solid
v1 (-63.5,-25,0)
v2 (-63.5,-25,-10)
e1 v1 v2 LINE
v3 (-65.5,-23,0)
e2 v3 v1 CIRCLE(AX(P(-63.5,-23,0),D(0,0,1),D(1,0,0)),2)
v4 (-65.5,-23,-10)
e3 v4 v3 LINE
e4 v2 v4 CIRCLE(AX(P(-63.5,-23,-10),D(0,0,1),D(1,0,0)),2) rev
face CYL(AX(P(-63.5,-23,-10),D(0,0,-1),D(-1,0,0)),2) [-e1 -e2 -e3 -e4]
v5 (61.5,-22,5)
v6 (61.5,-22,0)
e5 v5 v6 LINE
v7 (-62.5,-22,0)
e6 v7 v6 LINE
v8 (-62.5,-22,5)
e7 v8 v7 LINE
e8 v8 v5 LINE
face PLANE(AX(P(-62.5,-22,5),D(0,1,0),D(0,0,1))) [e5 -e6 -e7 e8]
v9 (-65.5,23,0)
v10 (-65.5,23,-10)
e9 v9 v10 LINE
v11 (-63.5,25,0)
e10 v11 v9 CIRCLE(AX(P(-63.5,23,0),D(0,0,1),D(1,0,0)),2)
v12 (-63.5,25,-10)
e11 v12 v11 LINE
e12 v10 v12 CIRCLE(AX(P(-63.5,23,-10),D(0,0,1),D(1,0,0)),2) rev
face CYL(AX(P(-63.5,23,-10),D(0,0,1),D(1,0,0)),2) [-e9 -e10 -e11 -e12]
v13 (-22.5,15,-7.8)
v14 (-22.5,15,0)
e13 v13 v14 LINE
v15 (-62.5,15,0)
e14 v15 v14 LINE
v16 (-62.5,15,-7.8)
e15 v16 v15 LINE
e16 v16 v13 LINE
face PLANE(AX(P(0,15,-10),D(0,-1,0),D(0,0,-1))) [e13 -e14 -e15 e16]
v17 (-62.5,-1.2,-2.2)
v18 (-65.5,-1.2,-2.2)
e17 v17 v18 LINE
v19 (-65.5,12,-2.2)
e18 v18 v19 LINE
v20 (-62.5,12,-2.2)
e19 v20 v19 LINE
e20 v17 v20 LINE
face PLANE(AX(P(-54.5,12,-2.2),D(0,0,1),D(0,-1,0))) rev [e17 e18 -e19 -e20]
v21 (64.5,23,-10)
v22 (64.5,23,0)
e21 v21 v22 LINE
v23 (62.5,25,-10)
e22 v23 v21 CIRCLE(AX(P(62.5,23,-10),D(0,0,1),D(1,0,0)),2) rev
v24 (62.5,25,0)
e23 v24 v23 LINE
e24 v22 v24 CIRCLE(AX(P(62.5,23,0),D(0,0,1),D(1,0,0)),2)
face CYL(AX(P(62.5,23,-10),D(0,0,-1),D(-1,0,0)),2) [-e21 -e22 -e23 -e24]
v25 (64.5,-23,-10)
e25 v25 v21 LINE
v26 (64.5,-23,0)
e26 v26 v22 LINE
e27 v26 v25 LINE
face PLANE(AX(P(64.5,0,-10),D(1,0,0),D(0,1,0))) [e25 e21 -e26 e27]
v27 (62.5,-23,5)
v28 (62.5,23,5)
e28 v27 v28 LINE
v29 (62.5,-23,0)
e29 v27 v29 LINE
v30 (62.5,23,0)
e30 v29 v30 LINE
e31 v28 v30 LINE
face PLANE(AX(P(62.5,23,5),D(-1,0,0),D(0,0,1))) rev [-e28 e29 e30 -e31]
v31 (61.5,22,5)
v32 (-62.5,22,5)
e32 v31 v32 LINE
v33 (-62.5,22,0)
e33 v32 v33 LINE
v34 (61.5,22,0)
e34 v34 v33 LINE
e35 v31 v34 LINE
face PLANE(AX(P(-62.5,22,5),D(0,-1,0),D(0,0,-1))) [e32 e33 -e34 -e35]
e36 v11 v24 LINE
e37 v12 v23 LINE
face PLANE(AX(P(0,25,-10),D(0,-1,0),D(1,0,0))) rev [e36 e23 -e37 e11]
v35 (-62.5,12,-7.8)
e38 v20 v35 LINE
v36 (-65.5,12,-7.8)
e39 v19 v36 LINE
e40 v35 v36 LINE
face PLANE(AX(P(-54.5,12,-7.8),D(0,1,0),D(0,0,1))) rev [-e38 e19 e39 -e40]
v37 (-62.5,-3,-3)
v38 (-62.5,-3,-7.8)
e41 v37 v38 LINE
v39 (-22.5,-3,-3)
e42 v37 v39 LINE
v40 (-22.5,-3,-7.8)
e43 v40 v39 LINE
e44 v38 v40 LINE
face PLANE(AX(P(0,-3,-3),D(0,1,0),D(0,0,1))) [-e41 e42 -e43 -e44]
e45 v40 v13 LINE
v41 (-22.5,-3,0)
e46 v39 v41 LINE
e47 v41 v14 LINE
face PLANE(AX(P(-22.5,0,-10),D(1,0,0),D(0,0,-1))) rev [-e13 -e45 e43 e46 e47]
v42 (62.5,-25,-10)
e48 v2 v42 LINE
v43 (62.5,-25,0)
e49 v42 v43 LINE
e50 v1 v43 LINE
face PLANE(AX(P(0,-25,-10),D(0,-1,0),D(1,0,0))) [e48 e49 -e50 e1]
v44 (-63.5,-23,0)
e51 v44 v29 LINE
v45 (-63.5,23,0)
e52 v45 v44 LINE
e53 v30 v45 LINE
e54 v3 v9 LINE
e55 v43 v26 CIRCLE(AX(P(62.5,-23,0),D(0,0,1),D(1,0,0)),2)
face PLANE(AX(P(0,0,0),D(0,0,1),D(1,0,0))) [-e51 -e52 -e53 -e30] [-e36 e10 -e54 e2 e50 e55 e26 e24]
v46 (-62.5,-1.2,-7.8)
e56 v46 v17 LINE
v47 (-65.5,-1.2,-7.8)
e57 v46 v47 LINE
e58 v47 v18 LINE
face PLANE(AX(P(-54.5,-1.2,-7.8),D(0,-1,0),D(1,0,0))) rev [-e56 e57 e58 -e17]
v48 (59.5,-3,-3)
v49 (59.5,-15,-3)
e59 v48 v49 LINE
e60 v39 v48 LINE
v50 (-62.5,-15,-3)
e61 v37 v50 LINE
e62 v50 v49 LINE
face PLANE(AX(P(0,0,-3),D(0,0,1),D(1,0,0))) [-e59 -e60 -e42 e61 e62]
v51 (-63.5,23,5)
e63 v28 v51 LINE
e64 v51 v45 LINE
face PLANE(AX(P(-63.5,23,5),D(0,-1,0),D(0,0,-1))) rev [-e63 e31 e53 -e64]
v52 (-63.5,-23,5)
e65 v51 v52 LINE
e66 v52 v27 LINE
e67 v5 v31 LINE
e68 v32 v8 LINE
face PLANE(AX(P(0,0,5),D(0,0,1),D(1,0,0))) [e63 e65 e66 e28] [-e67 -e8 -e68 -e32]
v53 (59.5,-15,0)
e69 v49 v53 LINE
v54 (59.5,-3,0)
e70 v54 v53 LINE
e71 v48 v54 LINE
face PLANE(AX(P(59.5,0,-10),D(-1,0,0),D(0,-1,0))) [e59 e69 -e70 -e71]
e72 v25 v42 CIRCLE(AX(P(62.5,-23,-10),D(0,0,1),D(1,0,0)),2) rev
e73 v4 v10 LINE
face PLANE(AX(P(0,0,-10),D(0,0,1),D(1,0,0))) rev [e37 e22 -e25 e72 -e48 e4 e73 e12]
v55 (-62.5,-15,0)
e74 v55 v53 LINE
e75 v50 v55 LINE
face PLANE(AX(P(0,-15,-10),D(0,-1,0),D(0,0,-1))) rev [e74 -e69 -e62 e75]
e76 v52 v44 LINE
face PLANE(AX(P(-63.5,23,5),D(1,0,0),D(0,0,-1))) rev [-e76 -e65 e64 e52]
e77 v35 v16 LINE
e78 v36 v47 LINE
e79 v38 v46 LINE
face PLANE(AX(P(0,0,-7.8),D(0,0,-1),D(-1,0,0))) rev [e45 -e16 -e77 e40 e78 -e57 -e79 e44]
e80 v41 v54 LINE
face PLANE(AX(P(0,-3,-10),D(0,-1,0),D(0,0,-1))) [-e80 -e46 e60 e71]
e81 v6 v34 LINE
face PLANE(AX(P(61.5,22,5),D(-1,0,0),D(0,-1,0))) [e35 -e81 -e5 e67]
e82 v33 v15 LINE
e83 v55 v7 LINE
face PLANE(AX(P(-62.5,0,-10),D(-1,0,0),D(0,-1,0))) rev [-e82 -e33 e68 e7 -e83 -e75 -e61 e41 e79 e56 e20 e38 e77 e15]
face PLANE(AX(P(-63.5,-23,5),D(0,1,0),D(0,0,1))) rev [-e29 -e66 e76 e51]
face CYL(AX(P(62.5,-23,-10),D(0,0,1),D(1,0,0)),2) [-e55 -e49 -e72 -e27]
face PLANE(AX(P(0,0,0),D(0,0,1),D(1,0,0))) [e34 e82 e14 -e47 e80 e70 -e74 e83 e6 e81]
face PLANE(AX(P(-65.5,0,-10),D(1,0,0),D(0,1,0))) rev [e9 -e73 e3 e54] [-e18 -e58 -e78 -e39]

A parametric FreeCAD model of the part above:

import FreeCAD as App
import Part
import Sketcher
Q = App.Units.Quantity


def edges_at(feature, points):
    """Names of the edges that pass closest to the given points."""
    edges = feature.Shape.Edges
    near = lambda p: min(range(len(edges)), key=lambda i: edges[i].distToShape(Part.Vertex(*p))[0])
    return sorted({f"Edge{near(p) + 1}" for p in points})

doc = App.newDocument("Part")
body = doc.addObject("PartDesign::Body", "Body")

sketch1 = doc.addObject("Sketcher::SketchObject", "Sketch")
body.addObject(sketch1)
sketch1.AttachmentSupport = (doc.XY_Plane, [""])
sketch1.MapMode = "FlatFace"
sketch1.addGeometry([
    Part.LineSegment(App.Vector(-65.5, 25, 0), App.Vector(-65.5, -25, 0)),
    Part.LineSegment(App.Vector(-65.5, -25, 0), App.Vector(64.5, -25, 0)),
    Part.LineSegment(App.Vector(64.5, -25, 0), App.Vector(64.5, 25, 0)),
    Part.LineSegment(App.Vector(64.5, 25, 0), App.Vector(-65.5, 25, 0)),
    Part.LineSegment(App.Vector(59.5, -15, 0), App.Vector(-62.5, -15, 0)),
    Part.LineSegment(App.Vector(-62.5, -15, 0), App.Vector(-62.5, 15, 0)),
    Part.LineSegment(App.Vector(-62.5, 15, 0), App.Vector(-22.5, 15, 0)),
    Part.LineSegment(App.Vector(-22.5, 15, 0), App.Vector(-22.5, -3, 0)),
    Part.LineSegment(App.Vector(-22.5, -3, 0), App.Vector(59.5, -3, 0)),
    Part.LineSegment(App.Vector(59.5, -3, 0), App.Vector(59.5, -15, 0)),
], False)
sketch1.addConstraint([
    Sketcher.Constraint("Coincident", 0, 2, 1, 1),
    Sketcher.Constraint("Coincident", 1, 2, 2, 1),
    Sketcher.Constraint("Coincident", 2, 2, 3, 1),
    Sketcher.Constraint("Coincident", 3, 2, 0, 1),
    Sketcher.Constraint("Coincident", 4, 2, 5, 1),
    Sketcher.Constraint("Coincident", 5, 2, 6, 1),
    Sketcher.Constraint("Coincident", 6, 2, 7, 1),
    Sketcher.Constraint("Coincident", 7, 2, 8, 1),
    Sketcher.Constraint("Coincident", 8, 2, 9, 1),
    Sketcher.Constraint("Coincident", 9, 2, 4, 1),
    Sketcher.Constraint("Vertical", 0),
    Sketcher.Constraint("Horizontal", 1),
    Sketcher.Constraint("Vertical", 2),
    Sketcher.Constraint("Horizontal", 3),
    Sketcher.Constraint("Horizontal", 4),
    Sketcher.Constraint("Vertical", 5),
    Sketcher.Constraint("Horizontal", 6),
    Sketcher.Constraint("Vertical", 7),
    Sketcher.Constraint("Horizontal", 8),
    Sketcher.Constraint("Vertical", 9),
    Sketcher.Constraint("DistanceX", 1, 1, 1, 2, Q("130 mm")),
    Sketcher.Constraint("DistanceX", 4, 2, 4, 1, Q("122 mm")),
    Sketcher.Constraint("DistanceX", 6, 1, 6, 2, Q("40 mm")),
    Sketcher.Constraint("DistanceY", 0, 2, 0, 1, Q("50 mm")),
    Sketcher.Constraint("DistanceY", 5, 1, 5, 2, Q("30 mm")),
    Sketcher.Constraint("DistanceY", 7, 2, 7, 1, Q("18 mm")),
    Sketcher.Constraint("DistanceY", 0, 2, -1, 1, Q("25 mm")),
    Sketcher.Constraint("DistanceY", 4, 2, -1, 1, Q("15 mm")),
    Sketcher.Constraint("DistanceX", 0, 2, 4, 2, Q("3 mm")),
    Sketcher.Constraint("DistanceX", 0, 2, -1, 1, Q("65.5 mm")),
])
pad1 = doc.addObject("PartDesign::Pad", "Pad")
body.addObject(pad1)
pad1.Profile = sketch1
pad1.Length = 10
pad1.Reversed = True

sketch2 = doc.addObject("Sketcher::SketchObject", "Sketch001")
body.addObject(sketch2)
sketch2.AttachmentSupport = (doc.XY_Plane, [""])
sketch2.MapMode = "FlatFace"
sketch2.AttachmentOffset = App.Placement(App.Vector(0, 0, -10), App.Rotation())
sketch2.addGeometry([
    Part.LineSegment(App.Vector(-62.5, -3, 0), App.Vector(-62.5, -15, 0)),
    Part.LineSegment(App.Vector(-62.5, -15, 0), App.Vector(59.5, -15, 0)),
    Part.LineSegment(App.Vector(59.5, -15, 0), App.Vector(59.5, -3, 0)),
    Part.LineSegment(App.Vector(59.5, -3, 0), App.Vector(-62.5, -3, 0)),
], False)
sketch2.addConstraint([
    Sketcher.Constraint("Coincident", 0, 2, 1, 1),
    Sketcher.Constraint("Coincident", 1, 2, 2, 1),
    Sketcher.Constraint("Coincident", 2, 2, 3, 1),
    Sketcher.Constraint("Coincident", 3, 2, 0, 1),
    Sketcher.Constraint("Vertical", 0),
    Sketcher.Constraint("Horizontal", 1),
    Sketcher.Constraint("Vertical", 2),
    Sketcher.Constraint("Horizontal", 3),
    Sketcher.Constraint("DistanceX", 1, 1, 1, 2, Q("122 mm")),
    Sketcher.Constraint("DistanceY", 0, 2, 0, 1, Q("12 mm")),
    Sketcher.Constraint("DistanceY", 0, 2, -1, 1, Q("15 mm")),
    Sketcher.Constraint("DistanceX", 0, 2, -1, 1, Q("62.5 mm")),
])
pad2 = doc.addObject("PartDesign::Pad", "Pad001")
body.addObject(pad2)
pad2.Profile = sketch2
pad2.Length = 7

sketch3 = doc.addObject("Sketcher::SketchObject", "Sketch002")
body.addObject(sketch3)
sketch3.AttachmentSupport = (doc.XY_Plane, [""])
sketch3.MapMode = "FlatFace"
sketch3.AttachmentOffset = App.Placement(App.Vector(0, 0, -10), App.Rotation())
sketch3.addGeometry([
    Part.LineSegment(App.Vector(-62.5, 15, 0), App.Vector(-62.5, -3, 0)),
    Part.LineSegment(App.Vector(-62.5, -3, 0), App.Vector(-22.5, -3, 0)),
    Part.LineSegment(App.Vector(-22.5, -3, 0), App.Vector(-22.5, 15, 0)),
    Part.LineSegment(App.Vector(-22.5, 15, 0), App.Vector(-62.5, 15, 0)),
], False)
sketch3.addConstraint([
    Sketcher.Constraint("Coincident", 0, 2, 1, 1),
    Sketcher.Constraint("Coincident", 1, 2, 2, 1),
    Sketcher.Constraint("Coincident", 2, 2, 3, 1),
    Sketcher.Constraint("Coincident", 3, 2, 0, 1),
    Sketcher.Constraint("Vertical", 0),
    Sketcher.Constraint("Horizontal", 1),
    Sketcher.Constraint("Vertical", 2),
    Sketcher.Constraint("Horizontal", 3),
    Sketcher.Constraint("DistanceX", 1, 1, 1, 2, Q("40 mm")),
    Sketcher.Constraint("DistanceY", 0, 2, 0, 1, Q("18 mm")),
    Sketcher.Constraint("DistanceY", 0, 2, -1, 1, Q("3 mm")),
    Sketcher.Constraint("DistanceX", 0, 2, -1, 1, Q("62.5 mm")),
])
pad3 = doc.addObject("PartDesign::Pad", "Pad002")
body.addObject(pad3)
pad3.Profile = sketch3
pad3.Length = 2.2

sketch4 = doc.addObject("Sketcher::SketchObject", "Sketch003")
body.addObject(sketch4)
sketch4.AttachmentSupport = (doc.YZ_Plane, [""])
sketch4.MapMode = "FlatFace"
sketch4.AttachmentOffset = App.Placement(App.Vector(0, 0, -65.5), App.Rotation())
sketch4.addGeometry([
    Part.LineSegment(App.Vector(12, -7.8, 0), App.Vector(-1.2, -7.8, 0)),
    Part.LineSegment(App.Vector(-1.2, -7.8, 0), App.Vector(-1.2, -2.2, 0)),
    Part.LineSegment(App.Vector(-1.2, -2.2, 0), App.Vector(12, -2.2, 0)),
    Part.LineSegment(App.Vector(12, -2.2, 0), App.Vector(12, -7.8, 0)),
], False)
sketch4.addConstraint([
    Sketcher.Constraint("Coincident", 0, 2, 1, 1),
    Sketcher.Constraint("Coincident", 1, 2, 2, 1),
    Sketcher.Constraint("Coincident", 2, 2, 3, 1),
    Sketcher.Constraint("Coincident", 3, 2, 0, 1),
    Sketcher.Constraint("Horizontal", 0),
    Sketcher.Constraint("Vertical", 1),
    Sketcher.Constraint("Horizontal", 2),
    Sketcher.Constraint("Vertical", 3),
    Sketcher.Constraint("DistanceX", 0, 2, 0, 1, Q("13.2 mm")),
    Sketcher.Constraint("DistanceY", 1, 1, 1, 2, Q("5.6 mm")),
    Sketcher.Constraint("DistanceX", -1, 1, 2, 2, Q("12 mm")),
    Sketcher.Constraint("DistanceY", 0, 2, -1, 1, Q("7.8 mm")),
])
pocket1 = doc.addObject("PartDesign::Pocket", "Pocket")
body.addObject(pocket1)
pocket1.Profile = sketch4
pocket1.Length = 11
pocket1.Reversed = True

sketch5 = doc.addObject("Sketcher::SketchObject", "Sketch004")
body.addObject(sketch5)
sketch5.AttachmentSupport = (doc.XY_Plane, [""])
sketch5.MapMode = "FlatFace"
sketch5.addGeometry([
    Part.LineSegment(App.Vector(-63.5, 23, 0), App.Vector(-63.5, -23, 0)),
    Part.LineSegment(App.Vector(-63.5, -23, 0), App.Vector(62.5, -23, 0)),
    Part.LineSegment(App.Vector(62.5, -23, 0), App.Vector(62.5, 23, 0)),
    Part.LineSegment(App.Vector(62.5, 23, 0), App.Vector(-63.5, 23, 0)),
    Part.LineSegment(App.Vector(61.5, -22, 0), App.Vector(-62.5, -22, 0)),
    Part.LineSegment(App.Vector(-62.5, -22, 0), App.Vector(-62.5, 22, 0)),
    Part.LineSegment(App.Vector(-62.5, 22, 0), App.Vector(61.5, 22, 0)),
    Part.LineSegment(App.Vector(61.5, 22, 0), App.Vector(61.5, -22, 0)),
], False)
sketch5.addConstraint([
    Sketcher.Constraint("Coincident", 0, 2, 1, 1),
    Sketcher.Constraint("Coincident", 1, 2, 2, 1),
    Sketcher.Constraint("Coincident", 2, 2, 3, 1),
    Sketcher.Constraint("Coincident", 3, 2, 0, 1),
    Sketcher.Constraint("Coincident", 4, 2, 5, 1),
    Sketcher.Constraint("Coincident", 5, 2, 6, 1),
    Sketcher.Constraint("Coincident", 6, 2, 7, 1),
    Sketcher.Constraint("Coincident", 7, 2, 4, 1),
    Sketcher.Constraint("Vertical", 0),
    Sketcher.Constraint("Horizontal", 1),
    Sketcher.Constraint("Vertical", 2),
    Sketcher.Constraint("Horizontal", 3),
    Sketcher.Constraint("Horizontal", 4),
    Sketcher.Constraint("Vertical", 5),
    Sketcher.Constraint("Horizontal", 6),
    Sketcher.Constraint("Vertical", 7),
    Sketcher.Constraint("DistanceX", 1, 1, 1, 2, Q("126 mm")),
    Sketcher.Constraint("DistanceX", 4, 2, 4, 1, Q("124 mm")),
    Sketcher.Constraint("DistanceY", 0, 2, 0, 1, Q("46 mm")),
    Sketcher.Constraint("DistanceY", 5, 1, 5, 2, Q("44 mm")),
    Sketcher.Constraint("DistanceY", 0, 2, -1, 1, Q("23 mm")),
    Sketcher.Constraint("DistanceY", 4, 2, -1, 1, Q("22 mm")),
    Sketcher.Constraint("DistanceX", 0, 2, 4, 2, Q("1 mm")),
    Sketcher.Constraint("DistanceX", 0, 2, -1, 1, Q("63.5 mm")),
])
pad4 = doc.addObject("PartDesign::Pad", "Pad003")
body.addObject(pad4)
pad4.Profile = sketch5
pad4.Length = 5
doc.recompute()

fillet = doc.addObject("PartDesign::Fillet", "Fillet")
body.addObject(fillet)
fillet.Base = (pad4, edges_at(pad4, [
    (-65.5, -25, -5),
    (-65.5, 25, -5),
    (64.5, 25, -5),
    (64.5, -25, -5),
]))
fillet.Radius = 2

doc.recompute()
